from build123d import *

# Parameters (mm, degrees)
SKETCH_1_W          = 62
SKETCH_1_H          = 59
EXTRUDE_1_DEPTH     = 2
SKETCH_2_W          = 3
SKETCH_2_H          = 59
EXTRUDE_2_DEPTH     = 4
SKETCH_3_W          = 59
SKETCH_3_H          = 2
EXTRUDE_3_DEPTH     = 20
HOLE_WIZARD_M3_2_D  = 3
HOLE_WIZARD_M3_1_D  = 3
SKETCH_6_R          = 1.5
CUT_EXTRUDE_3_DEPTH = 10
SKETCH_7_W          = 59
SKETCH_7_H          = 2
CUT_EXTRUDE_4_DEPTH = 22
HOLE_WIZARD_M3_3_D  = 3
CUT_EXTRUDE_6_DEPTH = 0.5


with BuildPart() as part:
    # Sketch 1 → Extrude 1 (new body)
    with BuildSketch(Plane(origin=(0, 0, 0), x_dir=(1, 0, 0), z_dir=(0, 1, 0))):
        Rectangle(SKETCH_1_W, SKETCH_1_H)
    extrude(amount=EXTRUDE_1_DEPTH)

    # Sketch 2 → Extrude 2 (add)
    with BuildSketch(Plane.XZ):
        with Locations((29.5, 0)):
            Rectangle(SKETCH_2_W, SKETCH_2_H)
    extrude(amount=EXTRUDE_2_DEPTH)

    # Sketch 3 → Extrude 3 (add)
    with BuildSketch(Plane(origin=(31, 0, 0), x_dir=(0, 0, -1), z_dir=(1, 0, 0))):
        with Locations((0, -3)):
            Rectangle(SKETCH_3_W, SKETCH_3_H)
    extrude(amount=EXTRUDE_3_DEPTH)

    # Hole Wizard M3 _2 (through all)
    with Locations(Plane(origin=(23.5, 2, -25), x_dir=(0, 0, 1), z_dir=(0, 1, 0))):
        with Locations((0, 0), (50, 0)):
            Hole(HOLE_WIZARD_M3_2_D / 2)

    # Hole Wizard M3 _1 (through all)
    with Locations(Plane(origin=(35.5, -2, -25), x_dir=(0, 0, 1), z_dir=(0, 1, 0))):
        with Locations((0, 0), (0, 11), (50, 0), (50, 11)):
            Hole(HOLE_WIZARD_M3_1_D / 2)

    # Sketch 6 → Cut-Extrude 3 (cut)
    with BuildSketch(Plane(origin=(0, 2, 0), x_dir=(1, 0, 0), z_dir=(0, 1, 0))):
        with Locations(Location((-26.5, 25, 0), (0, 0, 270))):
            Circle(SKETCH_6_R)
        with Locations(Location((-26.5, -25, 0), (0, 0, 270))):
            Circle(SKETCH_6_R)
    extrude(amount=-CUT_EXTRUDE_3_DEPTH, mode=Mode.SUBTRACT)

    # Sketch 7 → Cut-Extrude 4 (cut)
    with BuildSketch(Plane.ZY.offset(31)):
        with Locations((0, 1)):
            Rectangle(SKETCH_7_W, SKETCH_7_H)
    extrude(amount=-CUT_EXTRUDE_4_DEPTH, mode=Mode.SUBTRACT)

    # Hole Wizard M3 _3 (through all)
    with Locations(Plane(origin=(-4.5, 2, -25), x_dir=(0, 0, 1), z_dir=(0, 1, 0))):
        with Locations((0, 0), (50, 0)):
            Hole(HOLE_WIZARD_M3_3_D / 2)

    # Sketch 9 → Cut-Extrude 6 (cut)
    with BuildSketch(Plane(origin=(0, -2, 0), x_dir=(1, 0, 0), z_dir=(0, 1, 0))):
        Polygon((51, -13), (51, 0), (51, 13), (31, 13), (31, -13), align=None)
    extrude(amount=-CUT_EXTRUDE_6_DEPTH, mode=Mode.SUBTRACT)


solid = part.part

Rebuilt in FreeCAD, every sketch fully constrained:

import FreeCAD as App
import Part
import Sketcher
Q = App.Units.Quantity

doc = App.newDocument("Part")
body = doc.addObject("PartDesign::Body", "Body")

sketch1 = body.newObject("Sketcher::SketchObject", "Sketch")
sketch1.AttachmentSupport = (doc.getObject("XZ_Plane"), [""])
sketch1.MapMode = "FlatFace"
sketch1.addGeometry(Part.LineSegment(App.Vector(-31, -29.5, 0), App.Vector(-31, 29.5, 0)), False)
sketch1.addGeometry(Part.LineSegment(App.Vector(-31, 29.5, 0), App.Vector(31, 29.5, 0)), False)
sketch1.addGeometry(Part.LineSegment(App.Vector(31, 29.5, 0), App.Vector(31, -29.5, 0)), False)
sketch1.addGeometry(Part.LineSegment(App.Vector(31, -29.5, 0), App.Vector(-31, -29.5, 0)), False)
sketch1.addConstraint(Sketcher.Constraint("Coincident", 0, 2, 1, 1))
sketch1.addConstraint(Sketcher.Constraint("Coincident", 1, 2, 2, 1))
sketch1.addConstraint(Sketcher.Constraint("Coincident", 2, 2, 3, 1))
sketch1.addConstraint(Sketcher.Constraint("Coincident", 3, 2, 0, 1))
sketch1.addConstraint(Sketcher.Constraint("Vertical", 0))
sketch1.addConstraint(Sketcher.Constraint("Horizontal", 1))
sketch1.addConstraint(Sketcher.Constraint("Vertical", 2))
sketch1.addConstraint(Sketcher.Constraint("Horizontal", 3))
sketch1.addConstraint(Sketcher.Constraint("Symmetric", 0, 2, 2, 2, -1, 1))
sketch1.addConstraint(Sketcher.Constraint("DistanceX", 1, 1, 1, 2, Q("62 mm")))
sketch1.addConstraint(Sketcher.Constraint("DistanceY", 0, 1, 0, 2, Q("59 mm")))
pad1 = body.newObject("PartDesign::Pad", "Pad")
pad1.Profile = sketch1
pad1.Length = 2
pad1.Reversed = True

sketch2 = body.newObject("Sketcher::SketchObject", "Sketch001")
sketch2.AttachmentSupport = (doc.getObject("XZ_Plane"), [""])
sketch2.MapMode = "FlatFace"
sketch2.addGeometry(Part.LineSegment(App.Vector(28, 29.5, 0), App.Vector(28, -29.5, 0)), False)
sketch2.addGeometry(Part.LineSegment(App.Vector(28, -29.5, 0), App.Vector(31, -29.5, 0)), False)
sketch2.addGeometry(Part.LineSegment(App.Vector(31, -29.5, 0), App.Vector(31, 29.5, 0)), False)
sketch2.addGeometry(Part.LineSegment(App.Vector(31, 29.5, 0), App.Vector(28, 29.5, 0)), False)
sketch2.addConstraint(Sketcher.Constraint("Coincident", 0, 2, 1, 1))
sketch2.addConstraint(Sketcher.Constraint("Coincident", 1, 2, 2, 1))
sketch2.addConstraint(Sketcher.Constraint("Coincident", 2, 2, 3, 1))
sketch2.addConstraint(Sketcher.Constraint("Coincident", 3, 2, 0, 1))
sketch2.addConstraint(Sketcher.Constraint("Vertical", 0))
sketch2.addConstraint(Sketcher.Constraint("Horizontal", 1))
sketch2.addConstraint(Sketcher.Constraint("Vertical", 2))
sketch2.addConstraint(Sketcher.Constraint("Horizontal", 3))
sketch2.addConstraint(Sketcher.Constraint("DistanceX", 1, 1, 1, 2, Q("3 mm")))
sketch2.addConstraint(Sketcher.Constraint("DistanceY", 0, 2, 0, 1, Q("59 mm")))
sketch2.addConstraint(Sketcher.Constraint("DistanceX", -1, 1, 0, 2, Q("28 mm")))
sketch2.addConstraint(Sketcher.Constraint("DistanceY", 0, 2, -1, 1, Q("29.5 mm")))
pad2 = body.newObject("PartDesign::Pad", "Pad001")
pad2.Profile = sketch2
pad2.Length = 4

sketch3 = body.newObject("Sketcher::SketchObject", "Sketch002")
sketch3.AttachmentSupport = (doc.getObject("YZ_Plane"), [""])
sketch3.MapMode = "FlatFace"
sketch3.AttachmentOffset = App.Placement(App.Vector(0, 0, 31), App.Rotation())
sketch3.addGeometry(Part.LineSegment(App.Vector(-2, 29.5, 0), App.Vector(-4, 29.5, 0)), False)
sketch3.addGeometry(Part.LineSegment(App.Vector(-4, 29.5, 0), App.Vector(-4, -29.5, 0)), False)
sketch3.addGeometry(Part.LineSegment(App.Vector(-4, -29.5, 0), App.Vector(-2, -29.5, 0)), False)
sketch3.addGeometry(Part.LineSegment(App.Vector(-2, -29.5, 0), App.Vector(-2, 29.5, 0)), False)
sketch3.addConstraint(Sketcher.Constraint("Coincident", 0, 2, 1, 1))
sketch3.addConstraint(Sketcher.Constraint("Coincident", 1, 2, 2, 1))
sketch3.addConstraint(Sketcher.Constraint("Coincident", 2, 2, 3, 1))
sketch3.addConstraint(Sketcher.Constraint("Coincident", 3, 2, 0, 1))
sketch3.addConstraint(Sketcher.Constraint("Horizontal", 0))
sketch3.addConstraint(Sketcher.Constraint("Vertical", 1))
sketch3.addConstraint(Sketcher.Constraint("Horizontal", 2))
sketch3.addConstraint(Sketcher.Constraint("Vertical", 3))
sketch3.addConstraint(Sketcher.Constraint("DistanceX", 0, 2, 0, 1, Q("2 mm")))
sketch3.addConstraint(Sketcher.Constraint("DistanceY", 1, 2, 1, 1, Q("59 mm")))
sketch3.addConstraint(Sketcher.Constraint("DistanceX", 0, 2, -1, 1, Q("4 mm")))
sketch3.addConstraint(Sketcher.Constraint("DistanceY", -1, 1, 0, 2, Q("29.5 mm")))
pad3 = body.newObject("PartDesign::Pad", "Pad002")
pad3.Profile = sketch3
pad3.Length = 20

sketch4 = body.newObject("Sketcher::SketchObject", "Sketch003")
sketch4.AttachmentSupport = (doc.getObject("XZ_Plane"), [""])
sketch4.MapMode = "FlatFace"
sketch4.AttachmentOffset = App.Placement(App.Vector(0, 0, -2), App.Rotation())
sketch4.addGeometry(Part.Circle(App.Vector(23.5, -25, 0), App.Vector(0, 0, 1), 1.5), False)
sketch4.addGeometry(Part.Circle(App.Vector(23.5, 25, 0), App.Vector(0, 0, 1), 1.5), False)
sketch4.addConstraint(Sketcher.Constraint("Equal", 0, 1))
sketch4.addConstraint(Sketcher.Constraint("Symmetric", 0, 3, 1, 3, -1))
sketch4.addConstraint(Sketcher.Constraint("Diameter", 0, Q("3 mm")))
sketch4.addConstraint(Sketcher.Constraint("DistanceY", 0, 3, -1, 1, Q("25 mm")))
sketch4.addConstraint(Sketcher.Constraint("DistanceX", -1, 1, 0, 3, Q("23.5 mm")))
doc.recompute()
hole = body.newObject("PartDesign::Hole", "Hole")
hole.Profile = sketch4
hole.ThreadType = "None"
hole.Diameter = 3
hole.DepthType = "ThroughAll"
hole.Reversed = True

sketch5 = body.newObject("Sketcher::SketchObject", "Sketch004")
sketch5.AttachmentSupport = (doc.getObject("XZ_Plane"), [""])
sketch5.MapMode = "FlatFace"
sketch5.AttachmentOffset = App.Placement(App.Vector(0, 0, 2), App.Rotation())
sketch5.addGeometry(Part.Circle(App.Vector(35.5, -25, 0), App.Vector(0, 0, 1), 1.5), False)
sketch5.addGeometry(Part.Circle(App.Vector(46.5, -25, 0), App.Vector(0, 0, 1), 1.5), False)
sketch5.addGeometry(Part.Circle(App.Vector(35.5, 25, 0), App.Vector(0, 0, 1), 1.5), False)
sketch5.addGeometry(Part.Circle(App.Vector(46.5, 25, 0), App.Vector(0, 0, 1), 1.5), False)
sketch5.addConstraint(Sketcher.Constraint("Equal", 0, 1))
sketch5.addConstraint(Sketcher.Constraint("Equal", 1, 2))
sketch5.addConstraint(Sketcher.Constraint("Equal", 2, 3))
sketch5.addConstraint(Sketcher.Constraint("Symmetric", 0, 3, 2, 3, -1))
sketch5.addConstraint(Sketcher.Constraint("Symmetric", 1, 3, 3, 3, -1))
sketch5.addConstraint(Sketcher.Constraint("Horizontal", 0, 3, 1, 3))
sketch5.addConstraint(Sketcher.Constraint("Diameter", 0, Q("3 mm")))
sketch5.addConstraint(Sketcher.Constraint("DistanceY", 0, 3, -1, 1, Q("25 mm")))
sketch5.addConstraint(Sketcher.Constraint("DistanceX", 0, 3, 1, 3, Q("11 mm")))
sketch5.addConstraint(Sketcher.Constraint("DistanceX", -1, 1, 0, 3, Q("35.5 mm")))
doc.recompute()
hole2 = body.newObject("PartDesign::Hole", "Hole001")
hole2.Profile = sketch5
hole2.ThreadType = "None"
hole2.Diameter = 3
hole2.DepthType = "ThroughAll"
hole2.Reversed = True

sketch6 = body.newObject("Sketcher::SketchObject", "Sketch005")
sketch6.AttachmentSupport = (doc.getObject("XZ_Plane"), [""])
sketch6.MapMode = "FlatFace"
sketch6.AttachmentOffset = App.Placement(App.Vector(0, 0, -2), App.Rotation())
sketch6.addGeometry(Part.Circle(App.Vector(-26.5, -25, 0), App.Vector(0, 0, 1), 1.5), False)
sketch6.addGeometry(Part.Circle(App.Vector(-26.5, 25, 0), App.Vector(0, 0, 1), 1.5), False)
sketch6.addConstraint(Sketcher.Constraint("Equal", 0, 1))
sketch6.addConstraint(Sketcher.Constraint("Symmetric", 0, 3, 1, 3, -1))
sketch6.addConstraint(Sketcher.Constraint("Diameter", 0, Q("3 mm")))
sketch6.addConstraint(Sketcher.Constraint("DistanceY", 0, 3, -1, 1, Q("25 mm")))
sketch6.addConstraint(Sketcher.Constraint("DistanceX", 0, 3, -1, 1, Q("26.5 mm")))
pocket1 = body.newObject("PartDesign::Pocket", "Pocket")
pocket1.Profile = sketch6
pocket1.Length = 10
pocket1.Reversed = True

sketch7 = body.newObject("Sketcher::SketchObject", "Sketch006")
sketch7.AttachmentSupport = (doc.getObject("YZ_Plane"), [""])
sketch7.MapMode = "FlatFace"
sketch7.AttachmentOffset = App.Placement(App.Vector(0, 0, -31), App.Rotation())
sketch7.addGeometry(Part.LineSegment(App.Vector(2, -29.5, 0), App.Vector(0, -29.5, 0)), False)
sketch7.addGeometry(Part.LineSegment(App.Vector(0, -29.5, 0), App.Vector(0, 29.5, 0)), False)
sketch7.addGeometry(Part.LineSegment(App.Vector(0, 29.5, 0), App.Vector(2, 29.5, 0)), False)
sketch7.addGeometry(Part.LineSegment(App.Vector(2, 29.5, 0), App.Vector(2, -29.5, 0)), False)
sketch7.addConstraint(Sketcher.Constraint("Coincident", 0, 2, 1, 1))
sketch7.addConstraint(Sketcher.Constraint("Coincident", 1, 2, 2, 1))
sketch7.addConstraint(Sketcher.Constraint("Coincident", 2, 2, 3, 1))
sketch7.addConstraint(Sketcher.Constraint("Coincident", 3, 2, 0, 1))
sketch7.addConstraint(Sketcher.Constraint("Horizontal", 0))
sketch7.addConstraint(Sketcher.Constraint("Vertical", 1))
sketch7.addConstraint(Sketcher.Constraint("Horizontal", 2))
sketch7.addConstraint(Sketcher.Constraint("Vertical", 3))
sketch7.addConstraint(Sketcher.Constraint("Symmetric", 0, 2, 1, 2, -1, 1))
sketch7.addConstraint(Sketcher.Constraint("DistanceX", 0, 2, 0, 1, Q("2 mm")))
sketch7.addConstraint(Sketcher.Constraint("DistanceY", 1, 1, 1, 2, Q("59 mm")))
pocket2 = body.newObject("PartDesign::Pocket", "Pocket001")
pocket2.Profile = sketch7
pocket2.Length = 22
pocket2.Reversed = True

sketch8 = body.newObject("Sketcher::SketchObject", "Sketch007")
sketch8.AttachmentSupport = (doc.getObject("XZ_Plane"), [""])
sketch8.MapMode = "FlatFace"
sketch8.AttachmentOffset = App.Placement(App.Vector(0, 0, -2), App.Rotation())
sketch8.addGeometry(Part.Circle(App.Vector(-4.5, -25, 0), App.Vector(0, 0, 1), 1.5), False)
sketch8.addGeometry(Part.Circle(App.Vector(-4.5, 25, 0), App.Vector(0, 0, 1), 1.5), False)
sketch8.addConstraint(Sketcher.Constraint("Equal", 0, 1))
sketch8.addConstraint(Sketcher.Constraint("Symmetric", 0, 3, 1, 3, -1))
sketch8.addConstraint(Sketcher.Constraint("Diameter", 0, Q("3 mm")))
sketch8.addConstraint(Sketcher.Constraint("DistanceY", 0, 3, -1, 1, Q("25 mm")))
sketch8.addConstraint(Sketcher.Constraint("DistanceX", 0, 3, -1, 1, Q("4.5 mm")))
doc.recompute()
hole3 = body.newObject("PartDesign::Hole", "Hole002")
hole3.Profile = sketch8
hole3.ThreadType = "None"
hole3.Diameter = 3
hole3.DepthType = "ThroughAll"
hole3.Reversed = True

sketch9 = body.newObject("Sketcher::SketchObject", "Sketch008")
sketch9.AttachmentSupport = (doc.getObject("XZ_Plane"), [""])
sketch9.MapMode = "FlatFace"
sketch9.AttachmentOffset = App.Placement(App.Vector(0, 0, 2), App.Rotation())
sketch9.addGeometry(Part.LineSegment(App.Vector(51, 13, 0), App.Vector(51, -13, 0)), False)
sketch9.addGeometry(Part.LineSegment(App.Vector(51, -13, 0), App.Vector(31, -13, 0)), False)
sketch9.addGeometry(Part.LineSegment(App.Vector(31, -13, 0), App.Vector(31, 13, 0)), False)
sketch9.addGeometry(Part.LineSegment(App.Vector(31, 13, 0), App.Vector(51, 13, 0)), False)
sketch9.addConstraint(Sketcher.Constraint("Coincident", 0, 2, 1, 1))
sketch9.addConstraint(Sketcher.Constraint("Coincident", 1, 2, 2, 1))
sketch9.addConstraint(Sketcher.Constraint("Coincident", 2, 2, 3, 1))
sketch9.addConstraint(Sketcher.Constraint("Coincident", 3, 2, 0, 1))
sketch9.addConstraint(Sketcher.Constraint("Vertical", 0))
sketch9.addConstraint(Sketcher.Constraint("Horizontal", 1))
sketch9.addConstraint(Sketcher.Constraint("Vertical", 2))
sketch9.addConstraint(Sketcher.Constraint("Horizontal", 3))
sketch9.addConstraint(Sketcher.Constraint("DistanceX", 1, 2, 1, 1, Q("20 mm")))
sketch9.addConstraint(Sketcher.Constraint("DistanceY", 0, 2, 0, 1, Q("26 mm")))
sketch9.addConstraint(Sketcher.Constraint("DistanceX", -1, 1, 0, 2, Q("51 mm")))
sketch9.addConstraint(Sketcher.Constraint("DistanceY", 0, 2, -1, 1, Q("13 mm")))
pocket3 = body.newObject("PartDesign::Pocket", "Pocket002")
pocket3.Profile = sketch9
pocket3.Length = 0.5
pocket3.Reversed = True

doc.recompute()
